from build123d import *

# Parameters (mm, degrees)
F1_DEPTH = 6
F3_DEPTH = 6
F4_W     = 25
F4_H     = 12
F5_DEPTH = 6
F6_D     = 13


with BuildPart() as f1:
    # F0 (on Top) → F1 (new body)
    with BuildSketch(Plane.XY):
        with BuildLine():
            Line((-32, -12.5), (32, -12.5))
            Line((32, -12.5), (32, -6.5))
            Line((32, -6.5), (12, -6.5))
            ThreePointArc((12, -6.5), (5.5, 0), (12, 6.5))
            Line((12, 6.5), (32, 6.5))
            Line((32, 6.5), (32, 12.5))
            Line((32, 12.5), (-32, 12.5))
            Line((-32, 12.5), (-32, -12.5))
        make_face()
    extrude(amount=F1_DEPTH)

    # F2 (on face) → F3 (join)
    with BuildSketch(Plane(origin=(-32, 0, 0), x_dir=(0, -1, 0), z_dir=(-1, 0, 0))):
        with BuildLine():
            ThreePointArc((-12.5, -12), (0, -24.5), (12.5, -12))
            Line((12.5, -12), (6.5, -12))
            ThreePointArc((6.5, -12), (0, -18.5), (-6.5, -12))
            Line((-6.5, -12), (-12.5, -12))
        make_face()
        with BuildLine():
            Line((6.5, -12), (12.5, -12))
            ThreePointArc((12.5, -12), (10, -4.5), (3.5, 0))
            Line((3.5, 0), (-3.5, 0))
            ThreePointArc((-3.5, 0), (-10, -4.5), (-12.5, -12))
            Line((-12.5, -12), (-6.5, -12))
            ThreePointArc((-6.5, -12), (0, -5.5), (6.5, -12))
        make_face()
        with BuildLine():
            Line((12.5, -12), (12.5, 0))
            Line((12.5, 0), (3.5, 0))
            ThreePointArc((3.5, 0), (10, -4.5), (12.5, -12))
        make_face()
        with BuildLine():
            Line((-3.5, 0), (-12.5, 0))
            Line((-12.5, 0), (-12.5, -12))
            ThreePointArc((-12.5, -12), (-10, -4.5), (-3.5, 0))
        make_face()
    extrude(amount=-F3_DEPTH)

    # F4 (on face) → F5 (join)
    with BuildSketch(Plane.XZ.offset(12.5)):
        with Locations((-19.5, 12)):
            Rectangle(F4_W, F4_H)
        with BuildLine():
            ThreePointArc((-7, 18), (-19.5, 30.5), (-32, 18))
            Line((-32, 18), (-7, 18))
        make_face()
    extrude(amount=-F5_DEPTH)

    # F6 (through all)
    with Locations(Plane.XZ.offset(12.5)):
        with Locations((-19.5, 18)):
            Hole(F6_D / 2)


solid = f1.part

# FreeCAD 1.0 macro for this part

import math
import FreeCAD as App
import Part
import Sketcher
Q = App.Units.Quantity

doc = App.newDocument("Part")
params = doc.addObject("Spreadsheet::Sheet", "Params")
for row, (alias, value) in enumerate([
    ("sketch1_radius", "6.5 mm"),
    ("sketch1_width", "64 mm"),
    ("sketch1_width2", "20 mm"),
    ("sketch1_height", "6 mm"),
    ("pad1_length", "6 mm"),
    ("sketch2_diameter", "13 mm"),
    ("sketch2_radius", "12.5 mm"),
    ("sketch2_height", "12 mm"),
    ("pad2_length", "6 mm"),
    ("sketch3_radius", "12.5 mm"),
    ("sketch3_height", "12 mm"),
    ("pad3_length", "6 mm"),
    ("sketch4_diameter", "13 mm"),
    ("hole_diameter", "13 mm"),
], start=1):
    params.set(f"A{row}", alias)
    params.set(f"B{row}", "=" + value)
    params.setAlias(f"B{row}", alias)

body = doc.addObject("PartDesign::Body", "Body")

sketch1 = doc.addObject("Sketcher::SketchObject", "Sketch")
body.addObject(sketch1)
sketch1.AttachmentSupport = (doc.XY_Plane, [""])
sketch1.MapMode = "FlatFace"
sketch1.addGeometry([
    Part.LineSegment(App.Vector(-32, -12, 0), App.Vector(32, -12, 0)),
    Part.LineSegment(App.Vector(32, -12, 0), App.Vector(32, -6, 0)),
    Part.LineSegment(App.Vector(32, -6, 0), App.Vector(12, -6, 0)),
    Part.ArcOfCircle(Part.Circle(App.Vector(12, 0, 0), App.Vector(0, 0, 1), 6), math.radians(90), math.radians(270)),
    Part.LineSegment(App.Vector(12, 6, 0), App.Vector(32, 6, 0)),
    Part.LineSegment(App.Vector(32, 6, 0), App.Vector(32, 12, 0)),
    Part.LineSegment(App.Vector(32, 12, 0), App.Vector(-32, 12, 0)),
    Part.LineSegment(App.Vector(-32, 12, 0), App.Vector(-32, -12, 0)),
], False)
sketch1.addConstraint([
    Sketcher.Constraint("Coincident", 0, 2, 1, 1),
    Sketcher.Constraint("Coincident", 1, 2, 2, 1),
    Sketcher.Constraint("Tangent", 2, 2, 3, 2),
    Sketcher.Constraint("Tangent", 3, 1, 4, 1),
    Sketcher.Constraint("Coincident", 4, 2, 5, 1),
    Sketcher.Constraint("Coincident", 5, 2, 6, 1),
    Sketcher.Constraint("Coincident", 6, 2, 7, 1),
    Sketcher.Constraint("Coincident", 7, 2, 0, 1),
    Sketcher.Constraint("Horizontal", 0),
    Sketcher.Constraint("Vertical", 1),
    Sketcher.Constraint("Horizontal", 2),
    Sketcher.Constraint("Horizontal", 4),
    Sketcher.Constraint("Vertical", 5),
    Sketcher.Constraint("Horizontal", 6),
    Sketcher.Constraint("Vertical", 7),
    Sketcher.Constraint("Symmetric", 0, 2, 6, 2, -1, 1),
    Sketcher.Constraint("Symmetric", 1, 2, 4, 2, -1),
    Sketcher.Constraint("Radius", 3, Q("6.5 mm")),
    Sketcher.Constraint("DistanceX", 0, 1, 0, 2, Q("64 mm")),
    Sketcher.Constraint("DistanceX", 2, 2, 2, 1, Q("20 mm")),
    Sketcher.Constraint("DistanceY", 1, 1, 1, 2, Q("6 mm")),
])
sketch1.setExpression("Constraints[17]", "Params.sketch1_radius")
sketch1.setExpression("Constraints[18]", "Params.sketch1_width")
sketch1.setExpression("Constraints[19]", "Params.sketch1_width2")
sketch1.setExpression("Constraints[20]", "Params.sketch1_height")
pad1 = doc.addObject("PartDesign::Pad", "Pad")
body.addObject(pad1)
pad1.Profile = sketch1
pad1.setExpression("Length", "Params.pad1_length")

sketch2 = doc.addObject("Sketcher::SketchObject", "Sketch001")
body.addObject(sketch2)
sketch2.AttachmentSupport = (doc.YZ_Plane, [""])
sketch2.MapMode = "FlatFace"
sketch2.AttachmentOffset = App.Placement(App.Vector(0, 0, -32), App.Rotation())
sketch2.addGeometry([
    Part.ArcOfCircle(Part.Circle(App.Vector(0, -12, 0), App.Vector(0, 0, 1), 12), math.radians(180), math.radians(360)),
    Part.LineSegment(App.Vector(-12, -12, 0), App.Vector(-12, 0, 0)),
    Part.LineSegment(App.Vector(-12, 0, 0), App.Vector(12, 0, 0)),
    Part.LineSegment(App.Vector(12, 0, 0), App.Vector(12, -12, 0)),
    Part.Circle(App.Vector(0, -12, 0), App.Vector(0, 0, 1), 6),
], False)
sketch2.addConstraint([
    Sketcher.Constraint("Tangent", 0, 1, 1, 1),
    Sketcher.Constraint("Coincident", 1, 2, 2, 1),
    Sketcher.Constraint("Coincident", 2, 2, 3, 1),
    Sketcher.Constraint("Tangent", 3, 2, 0, 2),
    Sketcher.Constraint("Vertical", 1),
    Sketcher.Constraint("Horizontal", 2),
    Sketcher.Constraint("Vertical", 3),
    Sketcher.Constraint("Coincident", 4, 3, 0, 3),
    Sketcher.Constraint("Symmetric", 1, 2, 2, 2, -1, 1),
    Sketcher.Constraint("Diameter", 4, Q("13 mm")),
    Sketcher.Constraint("Radius", 0, Q("12.5 mm")),
    Sketcher.Constraint("DistanceY", 1, 1, 1, 2, Q("12 mm")),
])
sketch2.setExpression("Constraints[9]", "Params.sketch2_diameter")
sketch2.setExpression("Constraints[10]", "Params.sketch2_radius")
sketch2.setExpression("Constraints[11]", "Params.sketch2_height")
pad2 = doc.addObject("PartDesign::Pad", "Pad001")
body.addObject(pad2)
pad2.Profile = sketch2
pad2.setExpression("Length", "Params.pad2_length")

sketch3 = doc.addObject("Sketcher::SketchObject", "Sketch002")
body.addObject(sketch3)
sketch3.AttachmentSupport = (doc.XZ_Plane, [""])
sketch3.MapMode = "FlatFace"
sketch3.AttachmentOffset = App.Placement(App.Vector(0, 0, 12.5), App.Rotation())
sketch3.addGeometry([
    Part.LineSegment(App.Vector(-32, 18, 0), App.Vector(-32, 6, 0)),
    Part.LineSegment(App.Vector(-32, 6, 0), App.Vector(-7, 6, 0)),
    Part.LineSegment(App.Vector(-7, 6, 0), App.Vector(-7, 18, 0)),
    Part.ArcOfCircle(Part.Circle(App.Vector(-20, 18, 0), App.Vector(0, 0, 1), 12), math.radians(0), math.radians(180)),
], False)
sketch3.addConstraint([
    Sketcher.Constraint("Coincident", 0, 2, 1, 1),
    Sketcher.Constraint("Coincident", 1, 2, 2, 1),
    Sketcher.Constraint("Tangent", 2, 2, 3, 1),
    Sketcher.Constraint("Tangent", 3, 2, 0, 1),
    Sketcher.Constraint("Vertical", 0),
    Sketcher.Constraint("Horizontal", 1),
    Sketcher.Constraint("Vertical", 2),
    Sketcher.Constraint("Radius", 3, Q("12.5 mm")),
    Sketcher.Constraint("DistanceY", 0, 2, 0, 1, Q("12 mm")),
    Sketcher.Constraint("DistanceY", -1, 1, 3, 3, Q("18 mm")),
    Sketcher.Constraint("DistanceX", 0, 2, -1, 1, Q("32 mm")),
])
sketch3.setExpression("Constraints[7]", "Params.sketch3_radius")
sketch3.setExpression("Constraints[8]", "Params.sketch3_height")
pad3 = doc.addObject("PartDesign::Pad", "Pad002")
body.addObject(pad3)
pad3.Profile = sketch3
pad3.setExpression("Length", "Params.pad3_length")
pad3.Reversed = True

sketch4 = doc.addObject("Sketcher::SketchObject", "Sketch003")
body.addObject(sketch4)
sketch4.AttachmentSupport = (doc.XZ_Plane, [""])
sketch4.MapMode = "FlatFace"
sketch4.AttachmentOffset = App.Placement(App.Vector(0, 0, 12.5), App.Rotation())
sketch4.addGeometry(Part.Circle(App.Vector(-20, 18, 0), App.Vector(0, 0, 1), 6), False)
sketch4.addConstraint([
    Sketcher.Constraint("Diameter", 0, Q("13 mm")),
    Sketcher.Constraint("DistanceY", -1, 1, 0, 3, Q("18 mm")),
    Sketcher.Constraint("DistanceX", 0, 3, -1, 1, Q("19.5 mm")),
])
sketch4.setExpression("Constraints[0]", "Params.sketch4_diameter")
doc.recompute()
hole = doc.addObject("PartDesign::Hole", "Hole")
body.addObject(hole)
hole.Profile = sketch4
hole.ThreadType = "None"
hole.setExpression("Diameter", "Params.hole_diameter")
hole.DepthType = "ThroughAll"

doc.recompute()
